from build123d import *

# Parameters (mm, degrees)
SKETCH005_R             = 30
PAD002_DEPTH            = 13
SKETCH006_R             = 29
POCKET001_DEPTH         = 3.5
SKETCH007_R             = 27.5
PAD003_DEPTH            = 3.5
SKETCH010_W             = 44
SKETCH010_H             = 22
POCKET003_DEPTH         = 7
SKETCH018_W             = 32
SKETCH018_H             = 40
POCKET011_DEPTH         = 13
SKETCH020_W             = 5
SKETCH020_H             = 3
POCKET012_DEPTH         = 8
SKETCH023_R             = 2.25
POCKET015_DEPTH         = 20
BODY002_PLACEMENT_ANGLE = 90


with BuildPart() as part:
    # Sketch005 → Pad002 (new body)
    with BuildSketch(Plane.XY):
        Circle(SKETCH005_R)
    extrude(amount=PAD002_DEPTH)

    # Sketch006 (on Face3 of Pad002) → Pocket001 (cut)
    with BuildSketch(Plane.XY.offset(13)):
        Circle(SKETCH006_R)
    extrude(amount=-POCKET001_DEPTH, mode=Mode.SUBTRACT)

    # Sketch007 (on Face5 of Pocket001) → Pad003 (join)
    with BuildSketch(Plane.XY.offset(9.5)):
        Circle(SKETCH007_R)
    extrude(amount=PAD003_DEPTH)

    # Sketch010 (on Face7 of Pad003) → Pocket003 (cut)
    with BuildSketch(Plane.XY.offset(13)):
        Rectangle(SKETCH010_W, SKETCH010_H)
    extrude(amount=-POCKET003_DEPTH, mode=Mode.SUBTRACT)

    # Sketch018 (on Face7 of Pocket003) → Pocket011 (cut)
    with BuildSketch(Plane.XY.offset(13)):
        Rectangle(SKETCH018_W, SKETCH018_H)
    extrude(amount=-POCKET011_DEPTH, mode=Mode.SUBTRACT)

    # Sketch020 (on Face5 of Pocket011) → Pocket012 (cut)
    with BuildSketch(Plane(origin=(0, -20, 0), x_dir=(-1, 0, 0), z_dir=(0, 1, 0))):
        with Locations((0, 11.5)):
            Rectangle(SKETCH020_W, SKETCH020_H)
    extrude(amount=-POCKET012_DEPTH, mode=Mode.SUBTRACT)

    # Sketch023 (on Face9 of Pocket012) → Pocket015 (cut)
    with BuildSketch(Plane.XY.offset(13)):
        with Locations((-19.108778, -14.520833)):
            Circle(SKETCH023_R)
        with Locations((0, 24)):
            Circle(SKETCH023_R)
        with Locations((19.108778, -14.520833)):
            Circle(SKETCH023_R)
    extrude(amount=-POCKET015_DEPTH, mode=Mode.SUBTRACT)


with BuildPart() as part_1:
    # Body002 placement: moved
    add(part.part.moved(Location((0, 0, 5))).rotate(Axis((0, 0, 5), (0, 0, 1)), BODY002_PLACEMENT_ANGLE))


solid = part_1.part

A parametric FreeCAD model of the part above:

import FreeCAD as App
import Part
import Sketcher

V = App.Vector
Q = App.Units.Quantity


def add_polygon(sketch, points):
    """Adds a closed chain of lines whose ends are joined by coincident constraints."""
    first, n = sketch.GeometryCount, len(points)
    for a, b in zip(points, points[1:] + points[:1]):
        sketch.addGeometry(Part.LineSegment(App.Vector(*a, 0), App.Vector(*b, 0)), False)
    for i in range(n):
        sketch.addConstraint(Sketcher.Constraint("Coincident", first + i, 2, first + (i + 1) % n, 1))

doc = App.newDocument("Part")
body = doc.addObject("PartDesign::Body", "Body")

# Sketch on XY plane
sketch1 = body.newObject("Sketcher::SketchObject", "Sketch")
sketch1.AttachmentSupport = (doc.getObject("XY_Plane"), [""])
sketch1.MapMode = "FlatFace"
sketch1.addGeometry(Part.Circle(V(0, 0, 0), V(0, 0, 1), 30), False)
sketch1.addConstraint([
    Sketcher.Constraint("Coincident", 0, 3, -1, 1),
    Sketcher.Constraint("Diameter", 0, Q("60 mm")),
])
pad1 = body.newObject("PartDesign::Pad", "Pad")
pad1.Profile = sketch1
pad1.Length = 13

# Sketch on XY plane
sketch2 = body.newObject("Sketcher::SketchObject", "Sketch001")
sketch2.AttachmentSupport = (doc.getObject("XY_Plane"), [""])
sketch2.MapMode = "FlatFace"
sketch2.AttachmentOffset = App.Placement(V(0, 0, 13), App.Rotation())
sketch2.addGeometry(Part.Circle(V(0, 0, 0), V(0, 0, 1), 29), False)
sketch2.addConstraint([
    Sketcher.Constraint("Coincident", 0, 3, -1, 1),
    Sketcher.Constraint("Diameter", 0, Q("58 mm")),
])
pocket1 = body.newObject("PartDesign::Pocket", "Pocket")
pocket1.Profile = sketch2
pocket1.Length = 3.5

# Sketch on XY plane
sketch3 = body.newObject("Sketcher::SketchObject", "Sketch002")
sketch3.AttachmentSupport = (doc.getObject("XY_Plane"), [""])
sketch3.MapMode = "FlatFace"
sketch3.AttachmentOffset = App.Placement(V(0, 0, 9.5), App.Rotation())
sketch3.addGeometry(Part.Circle(V(0, 0, 0), V(0, 0, 1), 28), False)
sketch3.addConstraint([
    Sketcher.Constraint("Coincident", 0, 3, -1, 1),
    Sketcher.Constraint("Diameter", 0, Q("55 mm")),
])
pad2 = body.newObject("PartDesign::Pad", "Pad001")
pad2.Profile = sketch3
pad2.Length = 3.5

# Sketch on XY plane
sketch4 = body.newObject("Sketcher::SketchObject", "Sketch003")
sketch4.AttachmentSupport = (doc.getObject("XY_Plane"), [""])
sketch4.MapMode = "FlatFace"
sketch4.AttachmentOffset = App.Placement(V(0, 0, 13), App.Rotation())
add_polygon(sketch4, [(-22, 11), (-22, -11), (22, -11), (22, 11)])  # lines 0-3
sketch4.addConstraint([
    Sketcher.Constraint("Vertical", 0),
    Sketcher.Constraint("Horizontal", 1),
    Sketcher.Constraint("Vertical", 2),
    Sketcher.Constraint("Horizontal", 3),
    Sketcher.Constraint("Symmetric", 0, 2, 2, 2, -1, 1),
    Sketcher.Constraint("DistanceX", 1, 1, 1, 2, Q("44 mm")),
    Sketcher.Constraint("DistanceY", 0, 2, 0, 1, Q("22 mm")),
])
pocket2 = body.newObject("PartDesign::Pocket", "Pocket001")
pocket2.Profile = sketch4
pocket2.Length = 7

# Sketch on XY plane
sketch5 = body.newObject("Sketcher::SketchObject", "Sketch004")
sketch5.AttachmentSupport = (doc.getObject("XY_Plane"), [""])
sketch5.MapMode = "FlatFace"
sketch5.AttachmentOffset = App.Placement(V(0, 0, 13), App.Rotation())
add_polygon(sketch5, [(-16, 20), (-16, -20), (16, -20), (16, 20)])  # lines 0-3
sketch5.addConstraint([
    Sketcher.Constraint("Vertical", 0),
    Sketcher.Constraint("Horizontal", 1),
    Sketcher.Constraint("Vertical", 2),
    Sketcher.Constraint("Horizontal", 3),
    Sketcher.Constraint("Symmetric", 0, 2, 2, 2, -1, 1),
    Sketcher.Constraint("DistanceX", 1, 1, 1, 2, Q("32 mm")),
    Sketcher.Constraint("DistanceY", 0, 2, 0, 1, Q("40 mm")),
])
pocket3 = body.newObject("PartDesign::Pocket", "Pocket002")
pocket3.Profile = sketch5
pocket3.Length = 13

# Sketch on XZ plane
sketch6 = body.newObject("Sketcher::SketchObject", "Sketch005")
sketch6.AttachmentSupport = (doc.getObject("XZ_Plane"), [""])
sketch6.MapMode = "FlatFace"
sketch6.AttachmentOffset = App.Placement(V(0, 0, 20), App.Rotation())
add_polygon(sketch6, [(2.5, 13), (2.5, 10), (-2.5, 10), (-2.5, 13)])  # lines 0-3
sketch6.addConstraint([
    Sketcher.Constraint("Vertical", 0),
    Sketcher.Constraint("Horizontal", 1),
    Sketcher.Constraint("Vertical", 2),
    Sketcher.Constraint("Horizontal", 3),
    Sketcher.Constraint("DistanceX", 1, 2, 1, 1, Q("5 mm")),
    Sketcher.Constraint("DistanceY", 0, 2, 0, 1, Q("3 mm")),
    Sketcher.Constraint("DistanceY", -1, 1, 0, 2, Q("10 mm")),
    Sketcher.Constraint("DistanceX", -1, 1, 0, 2, Q("2.5 mm")),
])
pocket4 = body.newObject("PartDesign::Pocket", "Pocket003")
pocket4.Profile = sketch6
pocket4.Length = 8
pocket4.Reversed = True

# Sketch on XY plane
sketch7 = body.newObject("Sketcher::SketchObject", "Sketch006")
sketch7.AttachmentSupport = (doc.getObject("XY_Plane"), [""])
sketch7.MapMode = "FlatFace"
sketch7.AttachmentOffset = App.Placement(V(0, 0, 13), App.Rotation())
sketch7.addGeometry([
    Part.Circle(V(-19.1, -14.5, 0), V(0, 0, 1), 2.2),
    Part.Circle(V(0, 24, 0), V(0, 0, 1), 2.2),
    Part.Circle(V(19.1, -14.5, 0), V(0, 0, 1), 2.2),
], False)
sketch7.addConstraint([
    Sketcher.Constraint("Equal", 0, 1),
    Sketcher.Constraint("Equal", 1, 2),
    Sketcher.Constraint("Symmetric", 0, 3, 2, 3, -2),
    Sketcher.Constraint("PointOnObject", 1, 3, -2),
    Sketcher.Constraint("Diameter", 0, Q("4.5 mm")),
    Sketcher.Constraint("DistanceY", -1, 1, 1, 3, Q("24 mm")),
    Sketcher.Constraint("DistanceX", 0, 3, -1, 1, Q("19.108778 mm")),
    Sketcher.Constraint("DistanceY", 0, 3, -1, 1, Q("14.520833 mm")),
])
pocket5 = body.newObject("PartDesign::Pocket", "Pocket004")
pocket5.Profile = sketch7
pocket5.Length = 20
body2 = doc.addObject("PartDesign::Body", "Body001")
doc.recompute()

body.Placement = App.Placement(V(0, 0, 5), App.Rotation(V(0, 0, 1), 90))
boolean = body2.newObject("PartDesign::Boolean", "Boolean")
boolean.Type = "Fuse"
boolean.addObjects([body])

doc.recompute()
